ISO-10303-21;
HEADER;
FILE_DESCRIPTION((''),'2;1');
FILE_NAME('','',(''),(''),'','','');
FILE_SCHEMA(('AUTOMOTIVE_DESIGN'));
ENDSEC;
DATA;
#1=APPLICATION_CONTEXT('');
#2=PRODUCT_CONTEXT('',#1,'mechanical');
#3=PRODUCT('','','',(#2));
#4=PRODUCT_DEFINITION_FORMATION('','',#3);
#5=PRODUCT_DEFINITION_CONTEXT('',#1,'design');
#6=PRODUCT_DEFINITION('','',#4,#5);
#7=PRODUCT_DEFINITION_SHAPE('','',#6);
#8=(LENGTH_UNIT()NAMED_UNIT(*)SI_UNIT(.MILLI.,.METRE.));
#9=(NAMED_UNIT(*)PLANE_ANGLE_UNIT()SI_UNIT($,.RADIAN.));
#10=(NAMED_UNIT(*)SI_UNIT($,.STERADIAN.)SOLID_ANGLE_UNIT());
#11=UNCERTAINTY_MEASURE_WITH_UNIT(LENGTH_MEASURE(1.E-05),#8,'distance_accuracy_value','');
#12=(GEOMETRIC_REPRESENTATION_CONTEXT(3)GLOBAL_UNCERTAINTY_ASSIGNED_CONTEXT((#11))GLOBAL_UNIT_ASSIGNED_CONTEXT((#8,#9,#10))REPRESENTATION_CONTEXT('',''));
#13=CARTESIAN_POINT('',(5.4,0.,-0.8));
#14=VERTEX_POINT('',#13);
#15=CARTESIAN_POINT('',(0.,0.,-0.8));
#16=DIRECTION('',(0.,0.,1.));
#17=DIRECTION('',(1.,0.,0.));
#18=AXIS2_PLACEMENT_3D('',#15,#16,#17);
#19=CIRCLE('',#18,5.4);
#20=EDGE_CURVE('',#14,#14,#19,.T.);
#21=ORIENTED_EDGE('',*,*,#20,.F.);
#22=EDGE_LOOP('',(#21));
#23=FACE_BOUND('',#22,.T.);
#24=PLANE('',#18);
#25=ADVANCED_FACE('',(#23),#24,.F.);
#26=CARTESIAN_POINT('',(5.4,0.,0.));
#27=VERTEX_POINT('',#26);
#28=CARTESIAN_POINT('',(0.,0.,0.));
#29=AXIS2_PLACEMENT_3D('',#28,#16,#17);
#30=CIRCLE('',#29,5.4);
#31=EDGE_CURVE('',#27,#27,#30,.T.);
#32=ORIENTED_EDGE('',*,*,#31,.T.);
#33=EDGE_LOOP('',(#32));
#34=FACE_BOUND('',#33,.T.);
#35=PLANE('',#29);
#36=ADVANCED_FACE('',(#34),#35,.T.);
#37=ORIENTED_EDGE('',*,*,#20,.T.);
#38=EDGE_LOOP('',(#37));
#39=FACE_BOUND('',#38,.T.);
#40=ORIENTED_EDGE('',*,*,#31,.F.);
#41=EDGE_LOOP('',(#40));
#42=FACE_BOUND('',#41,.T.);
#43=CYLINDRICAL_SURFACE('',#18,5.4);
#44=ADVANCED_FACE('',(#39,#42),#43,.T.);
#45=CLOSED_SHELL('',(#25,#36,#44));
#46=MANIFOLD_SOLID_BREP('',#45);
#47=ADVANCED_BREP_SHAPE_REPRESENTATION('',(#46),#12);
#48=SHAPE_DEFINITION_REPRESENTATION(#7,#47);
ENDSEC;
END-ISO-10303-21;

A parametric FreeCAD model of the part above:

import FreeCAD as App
import Part
import Sketcher

doc = App.newDocument("Part")
params = doc.addObject("Spreadsheet::Sheet", "Params")
for row, (alias, value) in enumerate([
    ("sketch1_diameter", "10.8 mm"),
    ("pad1_length", "0.8 mm"),
], start=1):
    params.set(f"A{row}", alias)
    params.set(f"B{row}", "=" + value)
    params.setAlias(f"B{row}", alias)

body = doc.addObject("PartDesign::Body", "Body")

sketch1 = body.newObject("Sketcher::SketchObject", "Sketch")
sketch1.AttachmentSupport = (doc.getObject("XY_Plane"), [""])
sketch1.MapMode = "FlatFace"
sketch1.addGeometry(Part.Circle(App.Vector(0, 0, 0), App.Vector(0, 0, 1), 5), False)
sketch1.addConstraint(Sketcher.Constraint("Coincident", 0, 3, -1, 1))
sketch1.addConstraint(Sketcher.Constraint("Diameter", 0, 10.8))
sketch1.setExpression("Constraints[1]", "Params.sketch1_diameter")
pad1 = body.newObject("PartDesign::Pad", "Pad")
pad1.Profile = sketch1
pad1.setExpression("Length", "Params.pad1_length")
pad1.Reversed = True

doc.recompute()
